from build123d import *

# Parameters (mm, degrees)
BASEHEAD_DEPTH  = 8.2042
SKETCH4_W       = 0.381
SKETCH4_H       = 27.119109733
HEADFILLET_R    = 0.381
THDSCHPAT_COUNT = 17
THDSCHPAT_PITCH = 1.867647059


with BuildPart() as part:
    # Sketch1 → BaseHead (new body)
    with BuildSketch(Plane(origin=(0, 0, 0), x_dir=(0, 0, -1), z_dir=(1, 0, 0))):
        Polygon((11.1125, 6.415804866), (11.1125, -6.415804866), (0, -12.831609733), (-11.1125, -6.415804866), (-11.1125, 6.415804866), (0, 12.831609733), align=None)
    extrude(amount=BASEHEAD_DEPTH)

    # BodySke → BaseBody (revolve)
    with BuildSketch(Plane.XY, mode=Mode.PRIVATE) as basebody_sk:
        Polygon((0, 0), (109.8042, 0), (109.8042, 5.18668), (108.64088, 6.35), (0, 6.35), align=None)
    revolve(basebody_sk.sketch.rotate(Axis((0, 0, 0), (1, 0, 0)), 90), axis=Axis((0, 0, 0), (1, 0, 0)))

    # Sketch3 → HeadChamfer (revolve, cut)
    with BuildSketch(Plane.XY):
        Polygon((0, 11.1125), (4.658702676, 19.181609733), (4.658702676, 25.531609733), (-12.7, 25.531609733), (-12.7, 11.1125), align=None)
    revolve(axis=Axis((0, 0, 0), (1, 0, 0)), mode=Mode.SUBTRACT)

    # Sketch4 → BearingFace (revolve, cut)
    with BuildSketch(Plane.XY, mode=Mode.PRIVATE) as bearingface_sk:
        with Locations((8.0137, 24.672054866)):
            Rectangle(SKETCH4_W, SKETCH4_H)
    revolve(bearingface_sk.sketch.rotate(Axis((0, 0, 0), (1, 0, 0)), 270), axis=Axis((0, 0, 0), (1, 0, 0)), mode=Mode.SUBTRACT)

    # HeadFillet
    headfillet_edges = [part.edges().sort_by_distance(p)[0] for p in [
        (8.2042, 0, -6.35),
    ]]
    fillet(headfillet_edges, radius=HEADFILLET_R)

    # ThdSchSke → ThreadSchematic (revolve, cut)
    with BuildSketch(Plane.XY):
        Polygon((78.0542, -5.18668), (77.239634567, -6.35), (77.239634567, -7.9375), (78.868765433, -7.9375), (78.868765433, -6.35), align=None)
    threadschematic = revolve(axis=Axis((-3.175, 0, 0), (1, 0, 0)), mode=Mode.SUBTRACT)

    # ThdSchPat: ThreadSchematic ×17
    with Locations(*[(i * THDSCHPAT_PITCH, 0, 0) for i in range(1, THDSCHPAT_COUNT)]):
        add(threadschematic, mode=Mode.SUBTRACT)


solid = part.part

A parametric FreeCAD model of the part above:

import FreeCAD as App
import Part
import Sketcher
Q = App.Units.Quantity


def edges_at(feature, points):
    """Names of the edges that pass closest to the given points."""
    edges = feature.Shape.Edges
    near = lambda p: min(range(len(edges)), key=lambda i: edges[i].distToShape(Part.Vertex(*p))[0])
    return sorted({f"Edge{near(p) + 1}" for p in points})


def add_polygon(sketch, points):
    """Adds a closed chain of lines whose ends are joined by coincident constraints."""
    first, n = sketch.GeometryCount, len(points)
    for a, b in zip(points, points[1:] + points[:1]):
        sketch.addGeometry(Part.LineSegment(App.Vector(*a, 0), App.Vector(*b, 0)), False)
    for i in range(n):
        sketch.addConstraint(Sketcher.Constraint("Coincident", first + i, 2, first + (i + 1) % n, 1))

doc = App.newDocument("Part")
body = doc.addObject("PartDesign::Body", "Body")

sketch1 = body.newObject("Sketcher::SketchObject", "Sketch")
sketch1.AttachmentSupport = (doc.getObject("YZ_Plane"), [""])
sketch1.MapMode = "FlatFace"
add_polygon(sketch1, [(-6.415805, -11.1125), (6.415805, -11.1125), (12.83161, 0), (6.415805, 11.1125), (-6.415805, 11.1125), (-12.83161, 0)])
sketch1.addConstraint([
    Sketcher.Constraint("Horizontal", 0),
    Sketcher.Constraint("Horizontal", 3),
    Sketcher.Constraint("Symmetric", 0, 2, 3, 2, -1, 1),
    Sketcher.Constraint("Symmetric", 1, 2, 4, 2, -1, 1),
    Sketcher.Constraint("PointOnObject", 1, 2, -1),
    Sketcher.Constraint("Parallel", 2, 5),
    Sketcher.Constraint("Vertical", 0, 2, 2, 2),
    Sketcher.Constraint("Angle", 1, Q("60 deg")),
    Sketcher.Constraint("DistanceY", 0, 2, -1, 1, Q("0.4375 in")),
    Sketcher.Constraint("DistanceX", 0, 1, 0, 2, Q("12.83161 mm")),
])
pad1 = body.newObject("PartDesign::Pad", "Pad")
pad1.Profile = sketch1
pad1.Length = Q("0.323 in")

sketch2 = body.newObject("Sketcher::SketchObject", "Sketch001")
sketch2.AttachmentSupport = (doc.getObject("XY_Plane"), [""])
sketch2.MapMode = "FlatFace"
add_polygon(sketch2, [(0, 0), (109.8042, 0), (109.8042, 5.18668), (108.64088, 6.35), (0, 6.35)])
sketch2.addConstraint([
    Sketcher.Constraint("Horizontal", 0),
    Sketcher.Constraint("Vertical", 1),
    Sketcher.Constraint("Horizontal", 3),
    Sketcher.Constraint("Vertical", 4),
    Sketcher.Constraint("Coincident", 4, 2, -1, 1),
    Sketcher.Constraint("Angle", 2, Q("135 deg")),
    Sketcher.Constraint("DistanceY", 4, 2, 4, 1, Q("0.25 in")),
    Sketcher.Constraint("DistanceX", 0, 1, 0, 2, Q("4.323 in")),
    Sketcher.Constraint("DistanceX", 3, 2, 3, 1, Q("4.2772 in")),
])
revolution = body.newObject("PartDesign::Revolution", "Revolution")
revolution.Profile = sketch2
revolution.ReferenceAxis = (sketch2, ["H_Axis"])
revolution.Angle = 360

sketch3 = body.newObject("Sketcher::SketchObject", "Sketch002")
sketch3.AttachmentSupport = (doc.getObject("XY_Plane"), [""])
sketch3.MapMode = "FlatFace"
add_polygon(sketch3, [(0, 11.1125), (4.658703, 19.18161), (4.658703, 25.53161), (-12.7, 25.53161), (-12.7, 11.1125)])
sketch3.addConstraint([
    Sketcher.Constraint("Vertical", 1),
    Sketcher.Constraint("Horizontal", 2),
    Sketcher.Constraint("Vertical", 3),
    Sketcher.Constraint("Horizontal", 4),
    Sketcher.Constraint("PointOnObject", 4, 2, -2),
    Sketcher.Constraint("DistanceX", 4, 1, 4, 2, Q("0.5 in")),
    Sketcher.Constraint("Angle", 0, Q("60 deg")),
    Sketcher.Constraint("DistanceY", 1, 1, 1, 2, Q("0.25 in")),
    Sketcher.Constraint("DistanceY", -1, 1, 3, 2, Q("0.4375 in")),
    Sketcher.Constraint("DistanceY", 3, 2, 3, 1, Q("14.41911 mm")),
])
groove = body.newObject("PartDesign::Groove", "Groove")
groove.Profile = sketch3
groove.ReferenceAxis = (sketch3, ["H_Axis"])
groove.Angle = 360

sketch4 = body.newObject("Sketcher::SketchObject", "Sketch003")
sketch4.AttachmentSupport = (doc.getObject("XY_Plane"), [""])
sketch4.MapMode = "FlatFace"
add_polygon(sketch4, [(7.8232, 38.23161), (7.8232, 11.1125), (8.2042, 11.1125), (8.2042, 38.23161)])
sketch4.addConstraint([
    Sketcher.Constraint("Vertical", 0),
    Sketcher.Constraint("Horizontal", 1),
    Sketcher.Constraint("Vertical", 2),
    Sketcher.Constraint("Horizontal", 3),
    Sketcher.Constraint("DistanceX", 1, 1, 1, 2, Q("0.015 in")),
    Sketcher.Constraint("DistanceX", -1, 1, 0, 2, Q("0.308 in")),
    Sketcher.Constraint("DistanceY", -1, 1, 0, 2, Q("0.4375 in")),
    Sketcher.Constraint("DistanceY", 0, 2, 0, 1, Q("27.11911 mm")),
])
groove2 = body.newObject("PartDesign::Groove", "Groove001")
groove2.Profile = sketch4
groove2.ReferenceAxis = (sketch4, ["H_Axis"])
groove2.Angle = 360
doc.recompute()

fillet = body.newObject("PartDesign::Fillet", "Fillet")
fillet.Base = (groove2, edges_at(groove2, [(8.204, 0, -6.35)]))
fillet.Radius = Q("0.015 in")

sketch5 = body.newObject("Sketcher::SketchObject", "Sketch004")
sketch5.AttachmentSupport = (doc.getObject("XY_Plane"), [""])
sketch5.MapMode = "FlatFace"
add_polygon(sketch5, [(78.0542, -5.18668), (77.239635, -6.35), (77.239635, -7.9375), (78.868765, -7.9375), (78.868765, -6.35)])
sketch5.addConstraint([
    Sketcher.Constraint("Vertical", 1),
    Sketcher.Constraint("Horizontal", 2),
    Sketcher.Constraint("Vertical", 3),
    Sketcher.Constraint("Horizontal", 0, 2, 3, 2),
    Sketcher.Constraint("Equal", 0, 4),
    Sketcher.Constraint("Angle", 0, Q("-125 deg")),
    Sketcher.Constraint("DistanceY", 1, 2, 1, 1, Q("0.0625 in")),
    Sketcher.Constraint("DistanceY", 0, 2, -1, 1, Q("0.25 in")),
    Sketcher.Constraint("DistanceX", -1, 1, 4, 2, Q("3.073 in")),
    Sketcher.Constraint("DistanceY", 4, 2, -1, 1, Q("0.2042 in")),
])
groove3 = body.newObject("PartDesign::Groove", "Groove002")
groove3.Profile = sketch5
groove3.ReferenceAxis = (sketch5, ["H_Axis"])
groove3.Angle = 360
doc.recompute()

linearpattern = body.newObject("PartDesign::LinearPattern", "LinearPattern")
linearpattern.Originals = [groove3]
linearpattern.Direction = (doc.getObject("X_Axis"), [""])
linearpattern.Mode = "offset"
linearpattern.Offset = 1.867647
linearpattern.Occurrences = 17
body.Tip = linearpattern

doc.recompute()
